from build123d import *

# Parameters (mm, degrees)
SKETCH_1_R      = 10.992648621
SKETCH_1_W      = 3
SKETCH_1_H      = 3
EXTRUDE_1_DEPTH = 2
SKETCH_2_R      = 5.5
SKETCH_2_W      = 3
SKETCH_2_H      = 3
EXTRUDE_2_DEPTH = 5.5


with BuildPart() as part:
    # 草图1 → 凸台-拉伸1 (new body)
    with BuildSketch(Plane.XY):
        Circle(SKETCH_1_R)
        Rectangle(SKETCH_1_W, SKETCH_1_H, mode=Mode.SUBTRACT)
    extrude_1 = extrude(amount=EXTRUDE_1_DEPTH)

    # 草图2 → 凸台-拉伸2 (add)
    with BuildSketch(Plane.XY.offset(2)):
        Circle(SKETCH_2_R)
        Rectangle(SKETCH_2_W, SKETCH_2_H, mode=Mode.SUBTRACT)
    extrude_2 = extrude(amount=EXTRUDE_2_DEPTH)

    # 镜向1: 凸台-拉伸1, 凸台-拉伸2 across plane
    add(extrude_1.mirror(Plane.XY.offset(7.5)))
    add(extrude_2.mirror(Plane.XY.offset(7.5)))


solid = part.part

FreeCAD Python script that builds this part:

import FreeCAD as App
import Part
import Sketcher
from FreeCAD import Vector


def add_polygon(sketch, points):
    """Adds a closed chain of lines whose ends are joined by coincident constraints."""
    first, n = sketch.GeometryCount, len(points)
    for a, b in zip(points, points[1:] + points[:1]):
        sketch.addGeometry(Part.LineSegment(App.Vector(*a, 0), App.Vector(*b, 0)), False)
    for i in range(n):
        sketch.addConstraint(Sketcher.Constraint("Coincident", first + i, 2, first + (i + 1) % n, 1))

doc = App.newDocument("Part")
body = doc.addObject("PartDesign::Body", "Body")

sketch1 = doc.addObject("Sketcher::SketchObject", "Sketch")
body.addObject(sketch1)
sketch1.AttachmentSupport = (doc.XY_Plane, [""])
sketch1.MapMode = "FlatFace"
sketch1.addGeometry(Part.Circle(Vector(0, 0, 0), Vector(0, 0, 1), 11), False)
add_polygon(sketch1, [(1.5, -1.5), (-1.5, -1.5), (-1.5, 1.5), (1.5, 1.5)])
sketch1.addConstraint(Sketcher.Constraint("Horizontal", 1))
sketch1.addConstraint(Sketcher.Constraint("Vertical", 2))
sketch1.addConstraint(Sketcher.Constraint("Horizontal", 3))
sketch1.addConstraint(Sketcher.Constraint("Vertical", 4))
sketch1.addConstraint(Sketcher.Constraint("Coincident", 0, 3, -1, 1))
sketch1.addConstraint(Sketcher.Constraint("Symmetric", 1, 2, 3, 2, -1, 1))
sketch1.addConstraint(Sketcher.Constraint("Equal", 3, 2))
sketch1.addConstraint(Sketcher.Constraint("DistanceX", 1, 2, 1, 1, 3.0))
sketch1.addConstraint(Sketcher.Constraint("Diameter", 0, 21.985297))
pad1 = doc.addObject("PartDesign::Pad", "Pad")
body.addObject(pad1)
pad1.Profile = sketch1
pad1.Length = 2

sketch2 = doc.addObject("Sketcher::SketchObject", "Sketch001")
body.addObject(sketch2)
sketch2.AttachmentSupport = (doc.XY_Plane, [""])
sketch2.MapMode = "FlatFace"
sketch2.AttachmentOffset = App.Placement(Vector(0, 0, 2), App.Rotation())
sketch2.addGeometry(Part.Circle(Vector(0, 0, 0), Vector(0, 0, 1), 5.5), False)
add_polygon(sketch2, [(1.5, -1.5), (-1.5, -1.5), (-1.5, 1.5), (1.5, 1.5)])
sketch2.addConstraint(Sketcher.Constraint("Horizontal", 1))
sketch2.addConstraint(Sketcher.Constraint("Vertical", 2))
sketch2.addConstraint(Sketcher.Constraint("Horizontal", 3))
sketch2.addConstraint(Sketcher.Constraint("Vertical", 4))
sketch2.addConstraint(Sketcher.Constraint("Coincident", 0, 3, -1, 1))
sketch2.addConstraint(Sketcher.Constraint("Symmetric", 1, 2, 3, 2, -1, 1))
sketch2.addConstraint(Sketcher.Constraint("Equal", 3, 2))
sketch2.addConstraint(Sketcher.Constraint("Diameter", 0, 11.0))
sketch2.addConstraint(Sketcher.Constraint("DistanceX", 1, 2, 1, 1, 3.0))
pad2 = doc.addObject("PartDesign::Pad", "Pad001")
body.addObject(pad2)
pad2.Profile = sketch2
pad2.Length = 5.5
doc.recompute()

datumplane = doc.addObject("PartDesign::Plane", "DatumPlane")
body.addObject(datumplane)
datumplane.AttachmentSupport = (doc.XY_Plane, [""])
datumplane.MapMode = "FlatFace"
datumplane.AttachmentOffset = App.Placement(Vector(0, 0, 7.5), App.Rotation())
mirrored = doc.addObject("PartDesign::Mirrored", "Mirrored")
body.addObject(mirrored)
mirrored.Originals = [pad1, pad2]
mirrored.MirrorPlane = (datumplane, [""])
body.Tip = mirrored

doc.recompute()
